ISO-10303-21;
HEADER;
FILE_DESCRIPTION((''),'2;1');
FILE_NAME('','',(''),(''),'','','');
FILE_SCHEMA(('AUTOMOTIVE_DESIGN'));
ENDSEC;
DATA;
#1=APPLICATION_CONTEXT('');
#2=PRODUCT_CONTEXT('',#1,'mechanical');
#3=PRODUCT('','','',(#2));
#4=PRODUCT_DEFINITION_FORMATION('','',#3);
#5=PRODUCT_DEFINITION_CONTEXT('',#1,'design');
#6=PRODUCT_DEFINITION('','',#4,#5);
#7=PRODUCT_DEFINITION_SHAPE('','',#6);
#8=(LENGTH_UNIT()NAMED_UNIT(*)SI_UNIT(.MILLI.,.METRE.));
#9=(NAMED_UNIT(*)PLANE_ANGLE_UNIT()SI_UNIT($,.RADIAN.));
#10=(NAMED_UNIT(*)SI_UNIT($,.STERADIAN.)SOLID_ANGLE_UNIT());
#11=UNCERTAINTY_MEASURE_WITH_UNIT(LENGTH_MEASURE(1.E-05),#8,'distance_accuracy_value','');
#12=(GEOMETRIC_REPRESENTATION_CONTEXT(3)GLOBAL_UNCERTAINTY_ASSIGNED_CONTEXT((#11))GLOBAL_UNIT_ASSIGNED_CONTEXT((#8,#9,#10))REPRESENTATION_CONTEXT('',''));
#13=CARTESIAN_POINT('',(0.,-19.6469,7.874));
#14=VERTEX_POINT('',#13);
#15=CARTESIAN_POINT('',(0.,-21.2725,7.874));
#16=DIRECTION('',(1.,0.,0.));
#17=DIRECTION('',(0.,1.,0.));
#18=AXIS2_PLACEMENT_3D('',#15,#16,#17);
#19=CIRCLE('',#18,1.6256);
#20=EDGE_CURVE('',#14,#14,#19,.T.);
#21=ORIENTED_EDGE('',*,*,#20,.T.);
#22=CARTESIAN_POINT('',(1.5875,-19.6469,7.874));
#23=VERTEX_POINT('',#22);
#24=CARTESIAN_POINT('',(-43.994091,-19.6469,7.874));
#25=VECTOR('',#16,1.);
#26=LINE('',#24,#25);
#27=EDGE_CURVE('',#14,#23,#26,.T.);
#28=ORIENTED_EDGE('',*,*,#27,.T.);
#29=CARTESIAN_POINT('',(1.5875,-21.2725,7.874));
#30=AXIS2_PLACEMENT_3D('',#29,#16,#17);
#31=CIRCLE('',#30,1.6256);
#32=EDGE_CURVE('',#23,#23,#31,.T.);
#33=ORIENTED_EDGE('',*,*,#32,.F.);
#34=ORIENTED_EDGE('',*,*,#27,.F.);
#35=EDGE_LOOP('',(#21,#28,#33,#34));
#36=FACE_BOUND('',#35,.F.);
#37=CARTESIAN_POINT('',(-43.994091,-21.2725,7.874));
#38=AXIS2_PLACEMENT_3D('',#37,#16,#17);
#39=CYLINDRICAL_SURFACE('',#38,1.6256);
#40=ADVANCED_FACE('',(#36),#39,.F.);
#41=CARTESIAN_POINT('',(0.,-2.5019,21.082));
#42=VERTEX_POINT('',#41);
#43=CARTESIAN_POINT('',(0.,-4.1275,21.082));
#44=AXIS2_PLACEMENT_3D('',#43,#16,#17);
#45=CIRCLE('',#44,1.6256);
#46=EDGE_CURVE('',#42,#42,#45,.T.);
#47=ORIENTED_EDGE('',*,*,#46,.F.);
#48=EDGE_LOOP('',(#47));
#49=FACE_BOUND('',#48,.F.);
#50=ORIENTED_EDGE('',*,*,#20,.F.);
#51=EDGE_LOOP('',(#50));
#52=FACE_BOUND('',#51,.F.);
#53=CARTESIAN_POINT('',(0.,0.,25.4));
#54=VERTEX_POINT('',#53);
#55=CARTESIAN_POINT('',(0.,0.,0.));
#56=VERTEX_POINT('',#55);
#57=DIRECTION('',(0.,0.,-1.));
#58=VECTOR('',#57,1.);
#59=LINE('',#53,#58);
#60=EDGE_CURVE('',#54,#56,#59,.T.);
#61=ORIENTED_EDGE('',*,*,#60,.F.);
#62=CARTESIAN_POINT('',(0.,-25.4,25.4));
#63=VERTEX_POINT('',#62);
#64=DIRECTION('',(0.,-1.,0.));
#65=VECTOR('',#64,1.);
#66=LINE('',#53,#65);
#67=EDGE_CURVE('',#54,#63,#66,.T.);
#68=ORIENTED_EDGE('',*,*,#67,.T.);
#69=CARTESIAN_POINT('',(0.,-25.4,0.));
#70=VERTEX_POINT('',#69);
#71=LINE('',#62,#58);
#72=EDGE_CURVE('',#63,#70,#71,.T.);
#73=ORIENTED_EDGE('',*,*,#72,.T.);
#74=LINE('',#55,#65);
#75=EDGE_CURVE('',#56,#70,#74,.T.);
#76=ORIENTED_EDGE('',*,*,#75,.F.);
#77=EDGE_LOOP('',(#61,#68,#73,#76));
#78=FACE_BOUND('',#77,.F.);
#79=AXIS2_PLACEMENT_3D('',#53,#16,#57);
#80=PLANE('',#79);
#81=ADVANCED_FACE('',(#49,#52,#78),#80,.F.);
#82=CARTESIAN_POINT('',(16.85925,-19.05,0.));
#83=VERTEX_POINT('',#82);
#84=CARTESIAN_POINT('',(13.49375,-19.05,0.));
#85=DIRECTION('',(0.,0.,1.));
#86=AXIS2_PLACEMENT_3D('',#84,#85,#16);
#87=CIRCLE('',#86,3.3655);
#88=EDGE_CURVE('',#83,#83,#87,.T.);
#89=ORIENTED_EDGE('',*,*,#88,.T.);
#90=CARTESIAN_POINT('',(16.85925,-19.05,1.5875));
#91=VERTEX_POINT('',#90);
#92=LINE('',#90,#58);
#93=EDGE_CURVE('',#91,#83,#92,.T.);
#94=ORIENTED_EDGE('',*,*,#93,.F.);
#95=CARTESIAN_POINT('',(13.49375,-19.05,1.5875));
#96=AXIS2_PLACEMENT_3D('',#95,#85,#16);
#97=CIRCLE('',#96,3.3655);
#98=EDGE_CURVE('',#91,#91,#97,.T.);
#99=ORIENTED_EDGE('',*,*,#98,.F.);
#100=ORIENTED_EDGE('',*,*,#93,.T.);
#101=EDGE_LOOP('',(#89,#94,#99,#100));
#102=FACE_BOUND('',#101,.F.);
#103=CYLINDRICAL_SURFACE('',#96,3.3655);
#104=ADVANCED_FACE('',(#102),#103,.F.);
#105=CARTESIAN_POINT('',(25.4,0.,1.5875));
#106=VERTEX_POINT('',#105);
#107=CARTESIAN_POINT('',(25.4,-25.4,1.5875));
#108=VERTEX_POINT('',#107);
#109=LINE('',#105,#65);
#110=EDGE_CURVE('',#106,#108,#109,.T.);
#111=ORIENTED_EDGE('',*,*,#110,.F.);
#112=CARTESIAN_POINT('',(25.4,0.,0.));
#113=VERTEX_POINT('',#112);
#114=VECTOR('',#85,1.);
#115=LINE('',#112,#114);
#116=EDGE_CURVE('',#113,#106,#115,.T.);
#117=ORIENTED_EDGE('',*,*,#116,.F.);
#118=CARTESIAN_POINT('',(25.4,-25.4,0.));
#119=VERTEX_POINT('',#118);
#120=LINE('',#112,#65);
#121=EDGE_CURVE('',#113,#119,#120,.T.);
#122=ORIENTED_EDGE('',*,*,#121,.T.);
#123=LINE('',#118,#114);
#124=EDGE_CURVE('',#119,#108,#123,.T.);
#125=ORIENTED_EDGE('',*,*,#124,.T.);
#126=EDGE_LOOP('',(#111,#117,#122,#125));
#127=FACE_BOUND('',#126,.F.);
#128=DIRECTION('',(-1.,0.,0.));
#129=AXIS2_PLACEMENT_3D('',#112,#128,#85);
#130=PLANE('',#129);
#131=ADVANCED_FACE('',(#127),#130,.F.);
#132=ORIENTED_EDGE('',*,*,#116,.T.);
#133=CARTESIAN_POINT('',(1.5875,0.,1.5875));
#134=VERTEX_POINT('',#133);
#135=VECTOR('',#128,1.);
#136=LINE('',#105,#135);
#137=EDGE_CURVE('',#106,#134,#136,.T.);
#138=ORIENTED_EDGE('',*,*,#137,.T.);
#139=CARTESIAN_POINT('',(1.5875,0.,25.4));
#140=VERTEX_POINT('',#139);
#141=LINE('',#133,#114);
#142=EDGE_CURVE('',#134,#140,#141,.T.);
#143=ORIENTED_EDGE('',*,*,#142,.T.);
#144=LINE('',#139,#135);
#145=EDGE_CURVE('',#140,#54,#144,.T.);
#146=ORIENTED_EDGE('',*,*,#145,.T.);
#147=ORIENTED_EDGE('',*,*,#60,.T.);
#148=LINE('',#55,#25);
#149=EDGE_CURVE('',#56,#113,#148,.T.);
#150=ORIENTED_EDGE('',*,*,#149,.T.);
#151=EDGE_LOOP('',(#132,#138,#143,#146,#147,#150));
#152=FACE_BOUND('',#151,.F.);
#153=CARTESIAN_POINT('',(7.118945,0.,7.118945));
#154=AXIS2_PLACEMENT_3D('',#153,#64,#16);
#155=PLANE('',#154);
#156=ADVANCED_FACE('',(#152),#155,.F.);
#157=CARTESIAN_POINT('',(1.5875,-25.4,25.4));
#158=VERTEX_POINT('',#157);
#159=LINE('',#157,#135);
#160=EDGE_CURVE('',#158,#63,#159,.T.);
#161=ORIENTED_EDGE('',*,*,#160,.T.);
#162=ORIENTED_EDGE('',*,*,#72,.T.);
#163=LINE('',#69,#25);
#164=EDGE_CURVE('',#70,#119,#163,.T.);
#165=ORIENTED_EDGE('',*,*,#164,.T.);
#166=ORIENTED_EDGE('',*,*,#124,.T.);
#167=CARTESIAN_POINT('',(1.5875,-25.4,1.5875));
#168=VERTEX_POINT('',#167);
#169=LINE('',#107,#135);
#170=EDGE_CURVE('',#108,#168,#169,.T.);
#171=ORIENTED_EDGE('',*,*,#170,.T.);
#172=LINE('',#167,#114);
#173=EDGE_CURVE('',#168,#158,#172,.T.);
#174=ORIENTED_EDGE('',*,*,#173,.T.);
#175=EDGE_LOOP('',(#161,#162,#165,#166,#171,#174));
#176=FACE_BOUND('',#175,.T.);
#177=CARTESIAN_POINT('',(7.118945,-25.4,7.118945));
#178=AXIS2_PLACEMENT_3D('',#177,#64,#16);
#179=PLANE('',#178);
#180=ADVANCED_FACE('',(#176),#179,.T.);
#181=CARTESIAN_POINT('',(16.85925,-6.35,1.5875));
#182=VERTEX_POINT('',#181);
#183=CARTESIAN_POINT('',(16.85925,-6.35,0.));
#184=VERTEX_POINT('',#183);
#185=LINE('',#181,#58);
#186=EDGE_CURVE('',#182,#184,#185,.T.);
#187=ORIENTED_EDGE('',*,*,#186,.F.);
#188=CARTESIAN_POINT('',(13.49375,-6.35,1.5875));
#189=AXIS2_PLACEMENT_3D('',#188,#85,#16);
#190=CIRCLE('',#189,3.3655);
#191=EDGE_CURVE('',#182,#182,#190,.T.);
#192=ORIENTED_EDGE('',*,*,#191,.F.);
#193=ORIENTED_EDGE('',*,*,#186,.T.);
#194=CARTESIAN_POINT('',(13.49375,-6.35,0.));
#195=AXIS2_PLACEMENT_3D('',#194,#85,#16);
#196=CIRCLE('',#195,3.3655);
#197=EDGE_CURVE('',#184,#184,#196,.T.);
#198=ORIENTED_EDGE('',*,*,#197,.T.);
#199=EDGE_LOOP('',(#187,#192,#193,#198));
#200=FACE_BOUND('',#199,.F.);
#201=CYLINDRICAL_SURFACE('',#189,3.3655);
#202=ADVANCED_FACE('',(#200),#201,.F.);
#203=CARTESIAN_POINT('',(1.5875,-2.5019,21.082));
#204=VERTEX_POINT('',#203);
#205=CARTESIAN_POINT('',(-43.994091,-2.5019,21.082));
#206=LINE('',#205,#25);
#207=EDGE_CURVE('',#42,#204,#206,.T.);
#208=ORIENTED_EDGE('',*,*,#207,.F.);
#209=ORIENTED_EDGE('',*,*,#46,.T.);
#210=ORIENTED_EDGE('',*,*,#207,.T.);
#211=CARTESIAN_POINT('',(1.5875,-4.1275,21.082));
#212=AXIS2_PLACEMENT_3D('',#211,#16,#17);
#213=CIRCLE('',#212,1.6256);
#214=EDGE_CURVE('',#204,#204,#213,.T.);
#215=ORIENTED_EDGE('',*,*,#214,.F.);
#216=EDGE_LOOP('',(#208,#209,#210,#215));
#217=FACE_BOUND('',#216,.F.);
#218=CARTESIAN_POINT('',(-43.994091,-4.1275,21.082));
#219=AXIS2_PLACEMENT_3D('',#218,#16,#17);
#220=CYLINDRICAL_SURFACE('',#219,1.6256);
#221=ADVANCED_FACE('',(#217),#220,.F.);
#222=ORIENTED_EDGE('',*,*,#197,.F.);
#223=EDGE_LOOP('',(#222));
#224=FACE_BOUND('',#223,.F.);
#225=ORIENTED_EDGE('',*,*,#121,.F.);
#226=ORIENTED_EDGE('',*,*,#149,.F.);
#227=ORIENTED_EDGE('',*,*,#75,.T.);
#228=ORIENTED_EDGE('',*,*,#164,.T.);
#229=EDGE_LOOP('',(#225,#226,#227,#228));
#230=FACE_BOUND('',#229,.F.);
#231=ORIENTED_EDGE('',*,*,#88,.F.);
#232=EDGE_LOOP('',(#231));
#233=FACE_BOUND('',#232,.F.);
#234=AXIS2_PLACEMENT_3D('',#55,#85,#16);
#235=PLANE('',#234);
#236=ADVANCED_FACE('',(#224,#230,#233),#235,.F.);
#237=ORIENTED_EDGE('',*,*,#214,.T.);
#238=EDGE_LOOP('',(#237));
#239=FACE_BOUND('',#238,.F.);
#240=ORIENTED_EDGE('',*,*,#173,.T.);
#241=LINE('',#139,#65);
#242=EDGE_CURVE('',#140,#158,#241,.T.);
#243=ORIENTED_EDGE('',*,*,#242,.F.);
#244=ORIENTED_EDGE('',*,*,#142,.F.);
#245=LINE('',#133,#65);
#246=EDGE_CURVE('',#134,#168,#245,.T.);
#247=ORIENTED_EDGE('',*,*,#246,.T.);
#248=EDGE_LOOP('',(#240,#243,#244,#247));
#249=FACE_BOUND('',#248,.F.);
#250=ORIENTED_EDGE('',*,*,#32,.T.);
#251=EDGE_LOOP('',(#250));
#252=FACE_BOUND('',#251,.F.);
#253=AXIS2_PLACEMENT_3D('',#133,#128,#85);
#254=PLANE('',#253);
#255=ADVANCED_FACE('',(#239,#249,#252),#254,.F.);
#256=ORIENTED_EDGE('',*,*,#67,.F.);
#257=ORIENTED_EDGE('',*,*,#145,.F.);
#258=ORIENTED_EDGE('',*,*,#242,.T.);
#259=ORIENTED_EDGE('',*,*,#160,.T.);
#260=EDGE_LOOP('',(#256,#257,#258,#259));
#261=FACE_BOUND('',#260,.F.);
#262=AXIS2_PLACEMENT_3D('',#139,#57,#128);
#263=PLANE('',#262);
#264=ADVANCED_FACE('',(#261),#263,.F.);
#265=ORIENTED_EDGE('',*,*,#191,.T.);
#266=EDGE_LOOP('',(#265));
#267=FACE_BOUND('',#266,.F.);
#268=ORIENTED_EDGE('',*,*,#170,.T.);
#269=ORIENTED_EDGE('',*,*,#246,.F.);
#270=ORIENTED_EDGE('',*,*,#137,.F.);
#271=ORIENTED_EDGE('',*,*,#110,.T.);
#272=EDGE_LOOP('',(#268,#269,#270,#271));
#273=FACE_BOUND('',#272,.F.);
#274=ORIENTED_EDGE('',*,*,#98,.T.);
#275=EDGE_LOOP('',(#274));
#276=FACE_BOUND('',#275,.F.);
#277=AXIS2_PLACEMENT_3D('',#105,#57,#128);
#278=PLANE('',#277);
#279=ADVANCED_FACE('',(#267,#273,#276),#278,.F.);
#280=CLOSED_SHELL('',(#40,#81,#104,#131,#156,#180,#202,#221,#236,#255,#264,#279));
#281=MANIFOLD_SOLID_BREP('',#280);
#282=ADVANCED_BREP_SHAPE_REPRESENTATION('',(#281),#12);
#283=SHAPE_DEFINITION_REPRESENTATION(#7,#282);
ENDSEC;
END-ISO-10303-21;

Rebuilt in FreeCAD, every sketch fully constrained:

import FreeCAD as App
import Part
import Sketcher

V = App.Vector
Q = App.Units.Quantity


def add_polygon(sketch, points):
    """Adds a closed chain of lines whose ends are joined by coincident constraints."""
    first, n = sketch.GeometryCount, len(points)
    for a, b in zip(points, points[1:] + points[:1]):
        sketch.addGeometry(Part.LineSegment(App.Vector(*a, 0), App.Vector(*b, 0)), False)
    for i in range(n):
        sketch.addConstraint(Sketcher.Constraint("Coincident", first + i, 2, first + (i + 1) % n, 1))

doc = App.newDocument("Part")
params = doc.addObject("Spreadsheet::Sheet", "Params")
for row, (alias, value) in enumerate([
    ("sketch1_width", "1 in"),
    ("sketch1_width2", "0.0625 in"),
    ("pad1_length", "1 in"),
    ("sketch2_diameter", "0.128 in"),
    ("hole_diameter", "0.128 in"),
    ("sketch3_diameter", "0.265 in"),
    ("pocket1_length", "1 in"),
], start=1):
    params.set(f"A{row}", alias)
    params.set(f"B{row}", "=" + value)
    params.setAlias(f"B{row}", alias)

body = doc.addObject("PartDesign::Body", "Body")

sketch1 = body.newObject("Sketcher::SketchObject", "Sketch")
sketch1.AttachmentSupport = (doc.getObject("XZ_Plane"), [""])
sketch1.MapMode = "FlatFace"
add_polygon(sketch1, [(1.5875, 25.4), (0, 25.4), (0, 0), (25.4, 0), (25.4, 1.5875), (1.5875, 1.5875)])
sketch1.addConstraint(Sketcher.Constraint("Horizontal", 0))
sketch1.addConstraint(Sketcher.Constraint("Vertical", 1))
sketch1.addConstraint(Sketcher.Constraint("Horizontal", 2))
sketch1.addConstraint(Sketcher.Constraint("Vertical", 3))
sketch1.addConstraint(Sketcher.Constraint("Horizontal", 4))
sketch1.addConstraint(Sketcher.Constraint("Vertical", 5))
sketch1.addConstraint(Sketcher.Constraint("Coincident", 1, 2, -1, 1))
sketch1.addConstraint(Sketcher.Constraint("Equal", 2, 1))
sketch1.addConstraint(Sketcher.Constraint("Equal", 0, 3))
sketch1.addConstraint(Sketcher.Constraint("DistanceX", 2, 1, 2, 2, Q("1 in")))
sketch1.addConstraint(Sketcher.Constraint("DistanceX", 0, 2, 0, 1, Q("0.0625 in")))
sketch1.setExpression("Constraints[15]", "Params.sketch1_width")
sketch1.setExpression("Constraints[16]", "Params.sketch1_width2")
pad1 = body.newObject("PartDesign::Pad", "Pad")
pad1.Profile = sketch1
pad1.setExpression("Length", "Params.pad1_length")

sketch2 = body.newObject("Sketcher::SketchObject", "Sketch001")
sketch2.AttachmentSupport = (doc.getObject("YZ_Plane"), [""])
sketch2.MapMode = "FlatFace"
sketch2.addGeometry(Part.Circle(V(-4.1275, 21.082, 0), V(0, 0, 1), 1.6256), False)
sketch2.addGeometry(Part.Circle(V(-21.2725, 7.874, 0), V(0, 0, 1), 1.6256), False)
sketch2.addConstraint(Sketcher.Constraint("Equal", 0, 1))
sketch2.addConstraint(Sketcher.Constraint("Diameter", 0, Q("0.128 in")))
sketch2.addConstraint(Sketcher.Constraint("DistanceY", -1, 1, 0, 3, Q("0.83 in")))
sketch2.addConstraint(Sketcher.Constraint("DistanceY", -1, 1, 1, 3, Q("0.31 in")))
sketch2.addConstraint(Sketcher.Constraint("DistanceX", 1, 3, 0, 3, Q("0.675 in")))
sketch2.addConstraint(Sketcher.Constraint("DistanceX", 0, 3, -1, 1, Q("0.1625 in")))
sketch2.setExpression("Constraints[1]", "Params.sketch2_diameter")
doc.recompute()
hole = body.newObject("PartDesign::Hole", "Hole")
hole.Profile = sketch2
hole.ThreadType = "None"
hole.setExpression("Diameter", "Params.hole_diameter")
hole.DepthType = "ThroughAll"
hole.Reversed = True

sketch3 = body.newObject("Sketcher::SketchObject", "Sketch002")
sketch3.AttachmentSupport = (doc.getObject("XY_Plane"), [""])
sketch3.MapMode = "FlatFace"
sketch3.AttachmentOffset = App.Placement(V(0, 0, 0.0625 * 25.4), App.Rotation())
sketch3.addGeometry(Part.Circle(V(13.49375, -19.05, 0), V(0, 0, 1), 3.3655), False)
sketch3.addGeometry(Part.Circle(V(13.49375, -6.35, 0), V(0, 0, 1), 3.3655), False)
sketch3.addConstraint(Sketcher.Constraint("Equal", 0, 1))
sketch3.addConstraint(Sketcher.Constraint("Vertical", 0, 3, 1, 3))
sketch3.addConstraint(Sketcher.Constraint("Diameter", 0, Q("0.265 in")))
sketch3.addConstraint(Sketcher.Constraint("DistanceY", 0, 3, 1, 3, Q("0.5 in")))
sketch3.addConstraint(Sketcher.Constraint("DistanceY", 0, 3, -1, 1, Q("0.75 in")))
sketch3.addConstraint(Sketcher.Constraint("DistanceX", -1, 1, 0, 3, Q("0.53125 in")))
sketch3.setExpression("Constraints[2]", "Params.sketch3_diameter")
pocket1 = body.newObject("PartDesign::Pocket", "Pocket")
pocket1.Profile = sketch3
pocket1.setExpression("Length", "Params.pocket1_length")

doc.recompute()
